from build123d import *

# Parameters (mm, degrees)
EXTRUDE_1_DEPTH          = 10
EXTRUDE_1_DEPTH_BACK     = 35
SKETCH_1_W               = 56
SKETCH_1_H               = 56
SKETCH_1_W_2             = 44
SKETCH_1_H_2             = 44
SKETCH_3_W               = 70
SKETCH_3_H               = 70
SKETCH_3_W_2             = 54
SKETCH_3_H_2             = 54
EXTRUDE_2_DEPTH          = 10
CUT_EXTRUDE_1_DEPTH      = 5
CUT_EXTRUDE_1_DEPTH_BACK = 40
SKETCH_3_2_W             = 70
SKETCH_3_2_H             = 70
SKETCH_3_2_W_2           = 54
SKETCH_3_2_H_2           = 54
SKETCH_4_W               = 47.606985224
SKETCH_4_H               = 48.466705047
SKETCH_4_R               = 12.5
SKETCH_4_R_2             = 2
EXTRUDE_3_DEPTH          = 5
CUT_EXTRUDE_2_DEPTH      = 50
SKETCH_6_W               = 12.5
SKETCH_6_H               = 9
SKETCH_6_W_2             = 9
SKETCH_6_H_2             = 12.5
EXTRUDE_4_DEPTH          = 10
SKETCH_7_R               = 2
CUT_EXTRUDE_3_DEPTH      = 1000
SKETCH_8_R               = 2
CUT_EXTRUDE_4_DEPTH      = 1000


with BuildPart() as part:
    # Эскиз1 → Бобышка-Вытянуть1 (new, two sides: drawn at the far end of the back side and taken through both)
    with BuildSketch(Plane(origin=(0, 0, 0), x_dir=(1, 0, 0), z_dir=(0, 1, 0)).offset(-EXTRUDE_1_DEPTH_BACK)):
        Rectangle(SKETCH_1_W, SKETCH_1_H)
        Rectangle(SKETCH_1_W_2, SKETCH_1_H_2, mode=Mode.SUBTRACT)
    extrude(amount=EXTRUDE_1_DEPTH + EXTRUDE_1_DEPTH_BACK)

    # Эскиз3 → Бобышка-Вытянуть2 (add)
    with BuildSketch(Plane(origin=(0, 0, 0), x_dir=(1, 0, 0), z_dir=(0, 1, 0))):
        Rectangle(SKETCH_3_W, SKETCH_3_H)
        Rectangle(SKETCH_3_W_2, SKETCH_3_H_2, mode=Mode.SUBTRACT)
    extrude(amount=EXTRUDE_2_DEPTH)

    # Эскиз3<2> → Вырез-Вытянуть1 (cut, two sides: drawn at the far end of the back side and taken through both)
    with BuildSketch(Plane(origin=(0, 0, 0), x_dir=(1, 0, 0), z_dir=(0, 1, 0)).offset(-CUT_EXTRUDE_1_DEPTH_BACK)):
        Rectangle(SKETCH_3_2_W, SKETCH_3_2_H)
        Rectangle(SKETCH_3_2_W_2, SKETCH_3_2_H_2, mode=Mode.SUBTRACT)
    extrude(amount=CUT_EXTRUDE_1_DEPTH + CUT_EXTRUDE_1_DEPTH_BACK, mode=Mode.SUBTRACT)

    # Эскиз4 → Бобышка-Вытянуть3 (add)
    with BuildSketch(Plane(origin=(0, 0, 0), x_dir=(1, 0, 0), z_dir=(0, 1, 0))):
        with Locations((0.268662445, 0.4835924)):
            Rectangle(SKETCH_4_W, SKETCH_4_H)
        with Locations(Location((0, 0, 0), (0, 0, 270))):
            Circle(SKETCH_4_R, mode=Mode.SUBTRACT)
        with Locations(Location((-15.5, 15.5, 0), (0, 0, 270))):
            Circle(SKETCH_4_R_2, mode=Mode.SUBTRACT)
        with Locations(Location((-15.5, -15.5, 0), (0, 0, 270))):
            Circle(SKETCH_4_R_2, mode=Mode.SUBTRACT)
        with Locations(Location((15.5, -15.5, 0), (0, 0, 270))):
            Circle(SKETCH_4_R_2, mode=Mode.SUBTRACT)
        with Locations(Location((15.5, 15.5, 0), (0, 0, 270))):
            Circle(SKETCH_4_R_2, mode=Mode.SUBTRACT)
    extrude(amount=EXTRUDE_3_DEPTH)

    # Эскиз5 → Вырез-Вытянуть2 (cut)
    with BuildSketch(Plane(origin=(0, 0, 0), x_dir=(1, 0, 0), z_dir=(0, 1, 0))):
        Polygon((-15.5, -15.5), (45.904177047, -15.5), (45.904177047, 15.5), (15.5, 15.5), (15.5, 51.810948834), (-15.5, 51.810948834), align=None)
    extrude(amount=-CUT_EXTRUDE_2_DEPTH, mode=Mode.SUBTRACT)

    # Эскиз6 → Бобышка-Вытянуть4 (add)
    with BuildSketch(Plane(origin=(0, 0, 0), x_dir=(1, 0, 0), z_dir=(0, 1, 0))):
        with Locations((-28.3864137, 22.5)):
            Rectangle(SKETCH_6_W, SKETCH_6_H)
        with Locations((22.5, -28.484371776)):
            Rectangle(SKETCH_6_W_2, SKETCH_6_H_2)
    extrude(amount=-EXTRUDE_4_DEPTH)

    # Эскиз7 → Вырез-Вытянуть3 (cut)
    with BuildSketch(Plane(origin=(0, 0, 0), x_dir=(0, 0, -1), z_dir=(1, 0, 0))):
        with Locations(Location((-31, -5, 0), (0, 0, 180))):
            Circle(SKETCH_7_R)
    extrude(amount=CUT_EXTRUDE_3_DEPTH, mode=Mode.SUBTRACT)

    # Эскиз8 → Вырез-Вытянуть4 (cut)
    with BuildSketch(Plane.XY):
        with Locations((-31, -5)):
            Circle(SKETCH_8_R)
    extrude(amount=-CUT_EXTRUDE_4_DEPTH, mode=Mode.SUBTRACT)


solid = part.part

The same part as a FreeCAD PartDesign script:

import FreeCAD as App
import Part
import Sketcher

V = App.Vector
Q = App.Units.Quantity

doc = App.newDocument("Part")
body = doc.addObject("PartDesign::Body", "Body")

# Sketch on XZ plane
sketch1 = doc.addObject("Sketcher::SketchObject", "Sketch")
body.addObject(sketch1)
sketch1.AttachmentSupport = (doc.XZ_Plane, [""])
sketch1.MapMode = "FlatFace"
sketch1.addGeometry(Part.LineSegment(V(-28, -28, 0), V(-28, 28, 0)), False)
sketch1.addGeometry(Part.LineSegment(V(-28, 28, 0), V(28, 28, 0)), False)
sketch1.addGeometry(Part.LineSegment(V(28, 28, 0), V(28, -28, 0)), False)
sketch1.addGeometry(Part.LineSegment(V(28, -28, 0), V(-28, -28, 0)), False)
sketch1.addGeometry(Part.LineSegment(V(22, 22, 0), V(-22, 22, 0)), False)
sketch1.addGeometry(Part.LineSegment(V(-22, 22, 0), V(-22, -22, 0)), False)
sketch1.addGeometry(Part.LineSegment(V(-22, -22, 0), V(22, -22, 0)), False)
sketch1.addGeometry(Part.LineSegment(V(22, -22, 0), V(22, 22, 0)), False)
sketch1.addConstraint(Sketcher.Constraint("Coincident", 0, 2, 1, 1))
sketch1.addConstraint(Sketcher.Constraint("Coincident", 1, 2, 2, 1))
sketch1.addConstraint(Sketcher.Constraint("Coincident", 2, 2, 3, 1))
sketch1.addConstraint(Sketcher.Constraint("Coincident", 3, 2, 0, 1))
sketch1.addConstraint(Sketcher.Constraint("Coincident", 4, 2, 5, 1))
sketch1.addConstraint(Sketcher.Constraint("Coincident", 5, 2, 6, 1))
sketch1.addConstraint(Sketcher.Constraint("Coincident", 6, 2, 7, 1))
sketch1.addConstraint(Sketcher.Constraint("Coincident", 7, 2, 4, 1))
sketch1.addConstraint(Sketcher.Constraint("Vertical", 0))
sketch1.addConstraint(Sketcher.Constraint("Horizontal", 1))
sketch1.addConstraint(Sketcher.Constraint("Vertical", 2))
sketch1.addConstraint(Sketcher.Constraint("Horizontal", 3))
sketch1.addConstraint(Sketcher.Constraint("Horizontal", 4))
sketch1.addConstraint(Sketcher.Constraint("Vertical", 5))
sketch1.addConstraint(Sketcher.Constraint("Horizontal", 6))
sketch1.addConstraint(Sketcher.Constraint("Vertical", 7))
sketch1.addConstraint(Sketcher.Constraint("Symmetric", 0, 2, 2, 2, -1, 1))
sketch1.addConstraint(Sketcher.Constraint("Symmetric", 4, 2, 6, 2, -1, 1))
sketch1.addConstraint(Sketcher.Constraint("Equal", 3, 0))
sketch1.addConstraint(Sketcher.Constraint("Equal", 6, 5))
sketch1.addConstraint(Sketcher.Constraint("DistanceX", 1, 1, 1, 2, Q("56 mm")))
sketch1.addConstraint(Sketcher.Constraint("DistanceX", 4, 2, 4, 1, Q("44 mm")))
pad1 = doc.addObject("PartDesign::Pad", "Pad")
body.addObject(pad1)
pad1.Profile = sketch1
pad1.Type = "TwoLengths"
pad1.Length = 10
pad1.Length2 = 35
pad1.Reversed = True

# Sketch on XZ plane
sketch2 = doc.addObject("Sketcher::SketchObject", "Sketch001")
body.addObject(sketch2)
sketch2.AttachmentSupport = (doc.XZ_Plane, [""])
sketch2.MapMode = "FlatFace"
sketch2.addGeometry(Part.LineSegment(V(-35, -35, 0), V(-35, 35, 0)), False)
sketch2.addGeometry(Part.LineSegment(V(-35, 35, 0), V(35, 35, 0)), False)
sketch2.addGeometry(Part.LineSegment(V(35, 35, 0), V(35, -35, 0)), False)
sketch2.addGeometry(Part.LineSegment(V(35, -35, 0), V(-35, -35, 0)), False)
sketch2.addGeometry(Part.LineSegment(V(27, 27, 0), V(-27, 27, 0)), False)
sketch2.addGeometry(Part.LineSegment(V(-27, 27, 0), V(-27, -27, 0)), False)
sketch2.addGeometry(Part.LineSegment(V(-27, -27, 0), V(27, -27, 0)), False)
sketch2.addGeometry(Part.LineSegment(V(27, -27, 0), V(27, 27, 0)), False)
sketch2.addConstraint(Sketcher.Constraint("Coincident", 0, 2, 1, 1))
sketch2.addConstraint(Sketcher.Constraint("Coincident", 1, 2, 2, 1))
sketch2.addConstraint(Sketcher.Constraint("Coincident", 2, 2, 3, 1))
sketch2.addConstraint(Sketcher.Constraint("Coincident", 3, 2, 0, 1))
sketch2.addConstraint(Sketcher.Constraint("Coincident", 4, 2, 5, 1))
sketch2.addConstraint(Sketcher.Constraint("Coincident", 5, 2, 6, 1))
sketch2.addConstraint(Sketcher.Constraint("Coincident", 6, 2, 7, 1))
sketch2.addConstraint(Sketcher.Constraint("Coincident", 7, 2, 4, 1))
sketch2.addConstraint(Sketcher.Constraint("Vertical", 0))
sketch2.addConstraint(Sketcher.Constraint("Horizontal", 1))
sketch2.addConstraint(Sketcher.Constraint("Vertical", 2))
sketch2.addConstraint(Sketcher.Constraint("Horizontal", 3))
sketch2.addConstraint(Sketcher.Constraint("Horizontal", 4))
sketch2.addConstraint(Sketcher.Constraint("Vertical", 5))
sketch2.addConstraint(Sketcher.Constraint("Horizontal", 6))
sketch2.addConstraint(Sketcher.Constraint("Vertical", 7))
sketch2.addConstraint(Sketcher.Constraint("Symmetric", 0, 2, 2, 2, -1, 1))
sketch2.addConstraint(Sketcher.Constraint("Symmetric", 4, 2, 6, 2, -1, 1))
sketch2.addConstraint(Sketcher.Constraint("Equal", 3, 0))
sketch2.addConstraint(Sketcher.Constraint("Equal", 6, 5))
sketch2.addConstraint(Sketcher.Constraint("DistanceX", 1, 1, 1, 2, Q("70 mm")))
sketch2.addConstraint(Sketcher.Constraint("DistanceX", 4, 2, 4, 1, Q("54 mm")))
pad2 = doc.addObject("PartDesign::Pad", "Pad001")
body.addObject(pad2)
pad2.Profile = sketch2
pad2.Length = 10
pad2.Reversed = True

# Sketch on XZ plane
sketch3 = doc.addObject("Sketcher::SketchObject", "Sketch002")
body.addObject(sketch3)
sketch3.AttachmentSupport = (doc.XZ_Plane, [""])
sketch3.MapMode = "FlatFace"
sketch3.addGeometry(Part.LineSegment(V(-35, -35, 0), V(-35, 35, 0)), False)
sketch3.addGeometry(Part.LineSegment(V(-35, 35, 0), V(35, 35, 0)), False)
sketch3.addGeometry(Part.LineSegment(V(35, 35, 0), V(35, -35, 0)), False)
sketch3.addGeometry(Part.LineSegment(V(35, -35, 0), V(-35, -35, 0)), False)
sketch3.addGeometry(Part.LineSegment(V(27, 27, 0), V(-27, 27, 0)), False)
sketch3.addGeometry(Part.LineSegment(V(-27, 27, 0), V(-27, -27, 0)), False)
sketch3.addGeometry(Part.LineSegment(V(-27, -27, 0), V(27, -27, 0)), False)
sketch3.addGeometry(Part.LineSegment(V(27, -27, 0), V(27, 27, 0)), False)
sketch3.addConstraint(Sketcher.Constraint("Coincident", 0, 2, 1, 1))
sketch3.addConstraint(Sketcher.Constraint("Coincident", 1, 2, 2, 1))
sketch3.addConstraint(Sketcher.Constraint("Coincident", 2, 2, 3, 1))
sketch3.addConstraint(Sketcher.Constraint("Coincident", 3, 2, 0, 1))
sketch3.addConstraint(Sketcher.Constraint("Coincident", 4, 2, 5, 1))
sketch3.addConstraint(Sketcher.Constraint("Coincident", 5, 2, 6, 1))
sketch3.addConstraint(Sketcher.Constraint("Coincident", 6, 2, 7, 1))
sketch3.addConstraint(Sketcher.Constraint("Coincident", 7, 2, 4, 1))
sketch3.addConstraint(Sketcher.Constraint("Vertical", 0))
sketch3.addConstraint(Sketcher.Constraint("Horizontal", 1))
sketch3.addConstraint(Sketcher.Constraint("Vertical", 2))
sketch3.addConstraint(Sketcher.Constraint("Horizontal", 3))
sketch3.addConstraint(Sketcher.Constraint("Horizontal", 4))
sketch3.addConstraint(Sketcher.Constraint("Vertical", 5))
sketch3.addConstraint(Sketcher.Constraint("Horizontal", 6))
sketch3.addConstraint(Sketcher.Constraint("Vertical", 7))
sketch3.addConstraint(Sketcher.Constraint("Symmetric", 0, 2, 2, 2, -1, 1))
sketch3.addConstraint(Sketcher.Constraint("Symmetric", 4, 2, 6, 2, -1, 1))
sketch3.addConstraint(Sketcher.Constraint("Equal", 3, 0))
sketch3.addConstraint(Sketcher.Constraint("Equal", 6, 5))
sketch3.addConstraint(Sketcher.Constraint("DistanceX", 1, 1, 1, 2, Q("70 mm")))
sketch3.addConstraint(Sketcher.Constraint("DistanceX", 4, 2, 4, 1, Q("54 mm")))
pocket1 = doc.addObject("PartDesign::Pocket", "Pocket")
body.addObject(pocket1)
pocket1.Profile = sketch3
pocket1.Type = "TwoLengths"
pocket1.Length = 5
pocket1.Length2 = 40

# Sketch on XZ plane
sketch4 = doc.addObject("Sketcher::SketchObject", "Sketch003")
body.addObject(sketch4)
sketch4.AttachmentSupport = (doc.XZ_Plane, [""])
sketch4.MapMode = "FlatFace"
sketch4.addGeometry(Part.LineSegment(V(-23.5, -24.7, 0), V(-23.5, 23.7, 0)), False)
sketch4.addGeometry(Part.LineSegment(V(-23.5, 23.7, 0), V(24.1, 23.7, 0)), False)
sketch4.addGeometry(Part.LineSegment(V(24.1, 23.7, 0), V(24.1, -24.7, 0)), False)
sketch4.addGeometry(Part.LineSegment(V(24.1, -24.7, 0), V(-23.5, -24.7, 0)), False)
sketch4.addGeometry(Part.Circle(V(-15.5, 15.5, 0), V(0, 0, 1), 2), False)
sketch4.addGeometry(Part.Circle(V(15.5, 15.5, 0), V(0, 0, 1), 2), False)
sketch4.addGeometry(Part.Circle(V(-15.5, -15.5, 0), V(0, 0, 1), 2), False)
sketch4.addGeometry(Part.Circle(V(0, 0, 0), V(0, 0, 1), 12.5), False)
sketch4.addGeometry(Part.Circle(V(15.5, -15.5, 0), V(0, 0, 1), 2), False)
sketch4.addConstraint(Sketcher.Constraint("Coincident", 0, 2, 1, 1))
sketch4.addConstraint(Sketcher.Constraint("Coincident", 1, 2, 2, 1))
sketch4.addConstraint(Sketcher.Constraint("Coincident", 2, 2, 3, 1))
sketch4.addConstraint(Sketcher.Constraint("Coincident", 3, 2, 0, 1))
sketch4.addConstraint(Sketcher.Constraint("Vertical", 0))
sketch4.addConstraint(Sketcher.Constraint("Horizontal", 1))
sketch4.addConstraint(Sketcher.Constraint("Vertical", 2))
sketch4.addConstraint(Sketcher.Constraint("Horizontal", 3))
sketch4.addConstraint(Sketcher.Constraint("Coincident", 7, 3, -1, 1))
sketch4.addConstraint(Sketcher.Constraint("Equal", 4, 5))
sketch4.addConstraint(Sketcher.Constraint("Equal", 5, 6))
sketch4.addConstraint(Sketcher.Constraint("Equal", 6, 8))
sketch4.addConstraint(Sketcher.Constraint("Symmetric", 5, 3, 6, 3, -1, 1))
sketch4.addConstraint(Sketcher.Constraint("Symmetric", 4, 3, 8, 3, -1, 1))
sketch4.addConstraint(Sketcher.Constraint("Symmetric", 4, 3, 5, 3, -2))
sketch4.addConstraint(Sketcher.Constraint("Diameter", 4, Q("4 mm")))
sketch4.addConstraint(Sketcher.Constraint("Diameter", 7, Q("25 mm")))
sketch4.addConstraint(Sketcher.Constraint("DistanceX", 4, 3, 5, 3, Q("31 mm")))
sketch4.addConstraint(Sketcher.Constraint("DistanceY", 6, 3, 4, 3, Q("31 mm")))
sketch4.addConstraint(Sketcher.Constraint("DistanceX", 1, 1, 1, 2, Q("47.606985 mm")))
sketch4.addConstraint(Sketcher.Constraint("DistanceY", 0, 1, 0, 2, Q("48.466705 mm")))
sketch4.addConstraint(Sketcher.Constraint("DistanceX", 0, 2, -1, 1, Q("23.53483 mm")))
sketch4.addConstraint(Sketcher.Constraint("DistanceY", -1, 1, 0, 2, Q("23.74976 mm")))
pad3 = doc.addObject("PartDesign::Pad", "Pad002")
body.addObject(pad3)
pad3.Profile = sketch4
pad3.Length = 5
pad3.Reversed = True

# Sketch on XZ plane
sketch5 = doc.addObject("Sketcher::SketchObject", "Sketch004")
body.addObject(sketch5)
sketch5.AttachmentSupport = (doc.XZ_Plane, [""])
sketch5.MapMode = "FlatFace"
sketch5.addGeometry(Part.LineSegment(V(-16, 16, 0), V(46, 16, 0)), False)
sketch5.addGeometry(Part.LineSegment(V(46, 16, 0), V(46, -16, 0)), False)
sketch5.addGeometry(Part.LineSegment(V(46, -16, 0), V(16, -16, 0)), False)
sketch5.addGeometry(Part.LineSegment(V(16, -16, 0), V(16, -52, 0)), False)
sketch5.addGeometry(Part.LineSegment(V(16, -52, 0), V(-16, -52, 0)), False)
sketch5.addGeometry(Part.LineSegment(V(-16, -52, 0), V(-16, 16, 0)), False)
sketch5.addConstraint(Sketcher.Constraint("Coincident", 0, 2, 1, 1))
sketch5.addConstraint(Sketcher.Constraint("Coincident", 1, 2, 2, 1))
sketch5.addConstraint(Sketcher.Constraint("Coincident", 2, 2, 3, 1))
sketch5.addConstraint(Sketcher.Constraint("Coincident", 3, 2, 4, 1))
sketch5.addConstraint(Sketcher.Constraint("Coincident", 4, 2, 5, 1))
sketch5.addConstraint(Sketcher.Constraint("Coincident", 5, 2, 0, 1))
sketch5.addConstraint(Sketcher.Constraint("Horizontal", 0))
sketch5.addConstraint(Sketcher.Constraint("Vertical", 1))
sketch5.addConstraint(Sketcher.Constraint("Horizontal", 2))
sketch5.addConstraint(Sketcher.Constraint("Vertical", 3))
sketch5.addConstraint(Sketcher.Constraint("Horizontal", 4))
sketch5.addConstraint(Sketcher.Constraint("Vertical", 5))
sketch5.addConstraint(Sketcher.Constraint("Symmetric", 2, 2, 5, 2, -1, 1))
sketch5.addConstraint(Sketcher.Constraint("Equal", 4, 1))
sketch5.addConstraint(Sketcher.Constraint("DistanceX", 4, 2, 4, 1, Q("31 mm")))
sketch5.addConstraint(Sketcher.Constraint("DistanceY", 3, 2, 3, 1, Q("36.310949 mm")))
sketch5.addConstraint(Sketcher.Constraint("DistanceX", 0, 1, 0, 2, Q("61.404177 mm")))
pocket2 = doc.addObject("PartDesign::Pocket", "Pocket001")
body.addObject(pocket2)
pocket2.Profile = sketch5
pocket2.Length = 50
pocket2.Reversed = True

# Sketch on XZ plane
sketch6 = doc.addObject("Sketcher::SketchObject", "Sketch005")
body.addObject(sketch6)
sketch6.AttachmentSupport = (doc.XZ_Plane, [""])
sketch6.MapMode = "FlatFace"
sketch6.addGeometry(Part.LineSegment(V(-35, -27, 0), V(-35, -18, 0)), False)
sketch6.addGeometry(Part.LineSegment(V(-35, -18, 0), V(-22, -18, 0)), False)
sketch6.addGeometry(Part.LineSegment(V(-22, -18, 0), V(-22, -27, 0)), False)
sketch6.addGeometry(Part.LineSegment(V(-22, -27, 0), V(-35, -27, 0)), False)
sketch6.addGeometry(Part.LineSegment(V(18, 22, 0), V(18, 35, 0)), False)
sketch6.addGeometry(Part.LineSegment(V(18, 35, 0), V(27, 35, 0)), False)
sketch6.addGeometry(Part.LineSegment(V(27, 35, 0), V(27, 22, 0)), False)
sketch6.addGeometry(Part.LineSegment(V(27, 22, 0), V(18, 22, 0)), False)
sketch6.addConstraint(Sketcher.Constraint("Coincident", 0, 2, 1, 1))
sketch6.addConstraint(Sketcher.Constraint("Coincident", 1, 2, 2, 1))
sketch6.addConstraint(Sketcher.Constraint("Coincident", 2, 2, 3, 1))
sketch6.addConstraint(Sketcher.Constraint("Coincident", 3, 2, 0, 1))
sketch6.addConstraint(Sketcher.Constraint("Coincident", 4, 2, 5, 1))
sketch6.addConstraint(Sketcher.Constraint("Coincident", 5, 2, 6, 1))
sketch6.addConstraint(Sketcher.Constraint("Coincident", 6, 2, 7, 1))
sketch6.addConstraint(Sketcher.Constraint("Coincident", 7, 2, 4, 1))
sketch6.addConstraint(Sketcher.Constraint("Vertical", 0))
sketch6.addConstraint(Sketcher.Constraint("Horizontal", 1))
sketch6.addConstraint(Sketcher.Constraint("Vertical", 2))
sketch6.addConstraint(Sketcher.Constraint("Horizontal", 3))
sketch6.addConstraint(Sketcher.Constraint("Vertical", 4))
sketch6.addConstraint(Sketcher.Constraint("Horizontal", 5))
sketch6.addConstraint(Sketcher.Constraint("Vertical", 6))
sketch6.addConstraint(Sketcher.Constraint("Horizontal", 7))
sketch6.addConstraint(Sketcher.Constraint("Equal", 7, 0))
sketch6.addConstraint(Sketcher.Constraint("Equal", 3, 4))
sketch6.addConstraint(Sketcher.Constraint("DistanceX", 5, 1, 5, 2, Q("9 mm")))
sketch6.addConstraint(Sketcher.Constraint("DistanceX", 1, 1, 1, 2, Q("12.5 mm")))
sketch6.addConstraint(Sketcher.Constraint("DistanceY", 0, 2, -1, 1, Q("18 mm")))
sketch6.addConstraint(Sketcher.Constraint("DistanceX", -1, 1, 4, 2, Q("18 mm")))
sketch6.addConstraint(Sketcher.Constraint("DistanceY", -1, 1, 4, 2, Q("34.734372 mm")))
sketch6.addConstraint(Sketcher.Constraint("DistanceX", 0, 2, -1, 1, Q("34.636414 mm")))
pad4 = doc.addObject("PartDesign::Pad", "Pad003")
body.addObject(pad4)
pad4.Profile = sketch6
pad4.Length = 10

# Sketch on YZ plane
sketch7 = doc.addObject("Sketcher::SketchObject", "Sketch006")
body.addObject(sketch7)
sketch7.AttachmentSupport = (doc.YZ_Plane, [""])
sketch7.MapMode = "FlatFace"
sketch7.addGeometry(Part.Circle(V(-5, 31, 0), V(0, 0, 1), 2), False)
sketch7.addConstraint(Sketcher.Constraint("Diameter", 0, Q("4 mm")))
sketch7.addConstraint(Sketcher.Constraint("DistanceX", 0, 3, -1, 1, Q("5 mm")))
sketch7.addConstraint(Sketcher.Constraint("DistanceY", -1, 1, 0, 3, Q("31 mm")))
pocket3 = doc.addObject("PartDesign::Pocket", "Pocket002")
body.addObject(pocket3)
pocket3.Profile = sketch7
pocket3.Length = 1000
pocket3.Reversed = True

# Sketch on XY plane
sketch8 = doc.addObject("Sketcher::SketchObject", "Sketch007")
body.addObject(sketch8)
sketch8.AttachmentSupport = (doc.XY_Plane, [""])
sketch8.MapMode = "FlatFace"
sketch8.addGeometry(Part.Circle(V(-31, -5, 0), V(0, 0, 1), 2), False)
sketch8.addConstraint(Sketcher.Constraint("Diameter", 0, Q("4 mm")))
sketch8.addConstraint(Sketcher.Constraint("DistanceX", 0, 3, -1, 1, Q("31 mm")))
sketch8.addConstraint(Sketcher.Constraint("DistanceY", 0, 3, -1, 1, Q("5 mm")))
pocket4 = doc.addObject("PartDesign::Pocket", "Pocket003")
body.addObject(pocket4)
pocket4.Profile = sketch8
pocket4.Length = 1000

doc.recompute()
